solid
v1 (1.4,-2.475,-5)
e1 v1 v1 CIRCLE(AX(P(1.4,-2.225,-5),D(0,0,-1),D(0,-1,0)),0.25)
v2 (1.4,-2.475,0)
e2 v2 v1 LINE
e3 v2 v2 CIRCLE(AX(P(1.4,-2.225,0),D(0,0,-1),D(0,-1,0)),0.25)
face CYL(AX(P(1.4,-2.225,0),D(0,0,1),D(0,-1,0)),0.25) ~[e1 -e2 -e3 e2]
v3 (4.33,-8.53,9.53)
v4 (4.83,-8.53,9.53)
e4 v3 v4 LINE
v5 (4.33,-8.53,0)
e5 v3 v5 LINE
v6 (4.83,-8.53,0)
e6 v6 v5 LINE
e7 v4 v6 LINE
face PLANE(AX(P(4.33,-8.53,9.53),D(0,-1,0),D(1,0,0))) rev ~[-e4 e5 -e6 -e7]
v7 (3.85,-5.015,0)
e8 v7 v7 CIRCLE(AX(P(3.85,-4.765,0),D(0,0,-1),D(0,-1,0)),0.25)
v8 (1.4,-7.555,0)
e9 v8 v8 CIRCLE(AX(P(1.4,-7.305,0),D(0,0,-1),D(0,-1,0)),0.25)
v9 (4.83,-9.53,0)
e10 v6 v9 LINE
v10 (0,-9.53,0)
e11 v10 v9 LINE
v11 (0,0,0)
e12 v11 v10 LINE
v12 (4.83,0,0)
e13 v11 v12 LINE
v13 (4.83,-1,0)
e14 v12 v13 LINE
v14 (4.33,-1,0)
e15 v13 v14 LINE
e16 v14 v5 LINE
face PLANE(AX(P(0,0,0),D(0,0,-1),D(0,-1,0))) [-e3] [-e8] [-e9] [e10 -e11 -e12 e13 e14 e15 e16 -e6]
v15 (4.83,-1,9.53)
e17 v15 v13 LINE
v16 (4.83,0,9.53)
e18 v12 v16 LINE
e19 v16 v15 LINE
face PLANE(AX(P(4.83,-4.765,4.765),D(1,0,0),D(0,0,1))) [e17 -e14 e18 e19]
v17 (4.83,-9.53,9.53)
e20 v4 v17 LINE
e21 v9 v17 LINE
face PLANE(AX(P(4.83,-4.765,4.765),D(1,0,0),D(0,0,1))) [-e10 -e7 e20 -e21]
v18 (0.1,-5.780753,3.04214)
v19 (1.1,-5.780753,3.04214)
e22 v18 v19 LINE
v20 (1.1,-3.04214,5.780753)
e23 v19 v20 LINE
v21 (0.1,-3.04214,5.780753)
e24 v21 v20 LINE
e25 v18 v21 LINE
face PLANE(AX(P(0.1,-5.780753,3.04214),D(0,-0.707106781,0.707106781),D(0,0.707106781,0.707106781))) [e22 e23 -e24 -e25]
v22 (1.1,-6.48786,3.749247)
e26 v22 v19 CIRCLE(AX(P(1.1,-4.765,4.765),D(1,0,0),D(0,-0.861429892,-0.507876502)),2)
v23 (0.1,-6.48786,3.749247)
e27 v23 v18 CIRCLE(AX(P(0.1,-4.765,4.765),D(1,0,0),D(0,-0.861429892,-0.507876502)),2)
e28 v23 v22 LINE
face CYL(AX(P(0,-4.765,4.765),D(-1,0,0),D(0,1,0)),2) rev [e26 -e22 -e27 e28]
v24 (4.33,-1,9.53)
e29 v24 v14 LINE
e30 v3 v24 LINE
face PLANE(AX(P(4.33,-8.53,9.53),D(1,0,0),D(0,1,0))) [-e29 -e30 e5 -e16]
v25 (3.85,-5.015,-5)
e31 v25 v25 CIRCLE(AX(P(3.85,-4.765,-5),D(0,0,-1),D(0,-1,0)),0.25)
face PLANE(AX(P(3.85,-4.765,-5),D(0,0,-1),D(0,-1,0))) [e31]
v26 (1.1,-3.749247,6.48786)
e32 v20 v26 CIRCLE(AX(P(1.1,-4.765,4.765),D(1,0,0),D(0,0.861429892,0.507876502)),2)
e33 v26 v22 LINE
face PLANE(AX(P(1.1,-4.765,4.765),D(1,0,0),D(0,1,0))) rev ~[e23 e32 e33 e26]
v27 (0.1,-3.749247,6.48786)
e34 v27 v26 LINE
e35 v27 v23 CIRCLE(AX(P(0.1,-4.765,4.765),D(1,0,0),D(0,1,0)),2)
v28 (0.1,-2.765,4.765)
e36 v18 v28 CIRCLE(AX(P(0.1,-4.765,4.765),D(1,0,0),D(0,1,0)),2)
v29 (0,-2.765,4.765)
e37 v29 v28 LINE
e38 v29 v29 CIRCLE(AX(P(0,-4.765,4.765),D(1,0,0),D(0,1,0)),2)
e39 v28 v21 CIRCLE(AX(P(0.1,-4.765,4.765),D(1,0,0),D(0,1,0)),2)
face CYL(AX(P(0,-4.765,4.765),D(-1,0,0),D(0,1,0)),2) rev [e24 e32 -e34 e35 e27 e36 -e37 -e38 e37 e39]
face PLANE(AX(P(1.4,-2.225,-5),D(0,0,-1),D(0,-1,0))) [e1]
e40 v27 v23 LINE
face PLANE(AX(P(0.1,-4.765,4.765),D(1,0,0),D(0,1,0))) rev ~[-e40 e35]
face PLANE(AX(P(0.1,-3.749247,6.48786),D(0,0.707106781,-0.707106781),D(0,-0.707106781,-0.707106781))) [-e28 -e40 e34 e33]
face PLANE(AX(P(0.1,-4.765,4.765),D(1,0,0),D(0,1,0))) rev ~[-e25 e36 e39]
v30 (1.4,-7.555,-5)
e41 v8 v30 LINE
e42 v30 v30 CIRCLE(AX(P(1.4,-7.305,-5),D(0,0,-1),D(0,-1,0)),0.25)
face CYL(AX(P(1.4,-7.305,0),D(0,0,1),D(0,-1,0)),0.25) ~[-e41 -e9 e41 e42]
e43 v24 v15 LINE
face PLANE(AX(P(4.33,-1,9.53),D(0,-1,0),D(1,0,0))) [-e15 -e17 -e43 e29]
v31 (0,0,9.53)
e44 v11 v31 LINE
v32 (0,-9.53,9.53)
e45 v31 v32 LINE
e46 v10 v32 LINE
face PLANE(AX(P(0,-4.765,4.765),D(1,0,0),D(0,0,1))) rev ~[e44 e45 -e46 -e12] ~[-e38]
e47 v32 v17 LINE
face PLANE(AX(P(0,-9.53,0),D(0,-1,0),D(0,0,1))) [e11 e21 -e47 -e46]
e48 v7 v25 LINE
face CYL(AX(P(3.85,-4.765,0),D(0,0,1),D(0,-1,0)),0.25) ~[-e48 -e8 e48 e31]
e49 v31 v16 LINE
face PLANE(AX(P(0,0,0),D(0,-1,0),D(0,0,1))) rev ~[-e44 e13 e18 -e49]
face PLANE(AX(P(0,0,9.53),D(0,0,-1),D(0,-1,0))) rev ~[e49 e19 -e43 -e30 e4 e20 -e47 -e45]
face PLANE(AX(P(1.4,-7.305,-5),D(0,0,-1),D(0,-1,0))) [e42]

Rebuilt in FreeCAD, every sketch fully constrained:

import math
import FreeCAD as App
import Part
import Sketcher
from FreeCAD import Vector
Q = App.Units.Quantity

doc = App.newDocument("Part")
params = doc.addObject("Spreadsheet::Sheet", "Params")
for row, (alias, value) in enumerate([
    ("sketch1_width", "9.53 mm"),
    ("pad1_length", "4.83 mm"),
    ("sketch2_diameter", "4 mm"),
    ("pocket1_length", "0.1 mm"),
    ("sketch3_radius", "2 mm"),
    ("pocket2_length", "1 mm"),
    ("sketch4_diameter", "0.5 mm"),
    ("pad2_length", "5 mm"),
    ("sketch5_width", "0.5 mm"),
    ("sketch5_height", "7.53 mm"),
], start=1):
    params.set(f"A{row}", alias)
    params.set(f"B{row}", "=" + value)
    params.setAlias(f"B{row}", alias)

body = doc.addObject("PartDesign::Body", "Body")

sketch1 = body.newObject("Sketcher::SketchObject", "Sketch")
sketch1.AttachmentSupport = (doc.getObject("YZ_Plane"), [""])
sketch1.MapMode = "FlatFace"
sketch1.addGeometry([
    Part.LineSegment(Vector(-9.53, 0, 0), Vector(0, 0, 0)),
    Part.LineSegment(Vector(0, 0, 0), Vector(0, 9.53, 0)),
    Part.LineSegment(Vector(0, 9.53, 0), Vector(-9.53, 9.53, 0)),
    Part.LineSegment(Vector(-9.53, 9.53, 0), Vector(-9.53, 0, 0)),
], False)
sketch1.addConstraint([
    Sketcher.Constraint("Coincident", 0, 2, 1, 1),
    Sketcher.Constraint("Coincident", 1, 2, 2, 1),
    Sketcher.Constraint("Coincident", 2, 2, 3, 1),
    Sketcher.Constraint("Coincident", 3, 2, 0, 1),
    Sketcher.Constraint("Horizontal", 0),
    Sketcher.Constraint("Vertical", 1),
    Sketcher.Constraint("Horizontal", 2),
    Sketcher.Constraint("Vertical", 3),
    Sketcher.Constraint("Coincident", 0, 2, -1, 1),
    Sketcher.Constraint("Equal", 2, 1),
    Sketcher.Constraint("DistanceX", 0, 1, 0, 2, 9.53),
])
sketch1.setExpression("Constraints[10]", "Params.sketch1_width")
pad1 = body.newObject("PartDesign::Pad", "Pad")
pad1.Profile = sketch1
pad1.setExpression("Length", "Params.pad1_length")

sketch2 = body.newObject("Sketcher::SketchObject", "Sketch001")
sketch2.AttachmentSupport = (doc.getObject("YZ_Plane"), [""])
sketch2.MapMode = "FlatFace"
sketch2.addGeometry(Part.Circle(Vector(-4.765, 4.765, 0), Vector(0, 0, 1), 2), False)
sketch2.addConstraint([
    Sketcher.Constraint("Diameter", 0, 4.0),
    Sketcher.Constraint("DistanceX", 0, 3, -1, 1, 4.765),
    Sketcher.Constraint("DistanceY", -1, 1, 0, 3, 4.765),
])
sketch2.setExpression("Constraints[0]", "Params.sketch2_diameter")
pocket1 = body.newObject("PartDesign::Pocket", "Pocket")
pocket1.Profile = sketch2
pocket1.setExpression("Length", "Params.pocket1_length")
pocket1.Reversed = True

sketch3 = body.newObject("Sketcher::SketchObject", "Sketch002")
sketch3.AttachmentSupport = (doc.getObject("YZ_Plane"), [""])
sketch3.MapMode = "FlatFace"
sketch3.AttachmentOffset = App.Placement(Vector(0, 0, 0.1), App.Rotation())
sketch3.addGeometry([
    Part.LineSegment(Vector(-6.48786, 3.749247, 0), Vector(-3.749247, 6.48786, 0)),
    Part.ArcOfCircle(Part.Circle(Vector(-4.765, 4.765, 0), Vector(0, 0, 1), 2), math.radians(30.522488), math.radians(59.477512)),
    Part.LineSegment(Vector(-3.04214, 5.780753, 0), Vector(-5.780753, 3.04214, 0)),
    Part.ArcOfCircle(Part.Circle(Vector(-4.765, 4.765, 0), Vector(0, 0, 1), 2), math.radians(-149.477512), math.radians(-120.522488)),
], False)
sketch3.addConstraint([
    Sketcher.Constraint("Coincident", 0, 2, 1, 2),
    Sketcher.Constraint("Coincident", 1, 1, 2, 1),
    Sketcher.Constraint("Coincident", 2, 2, 3, 2),
    Sketcher.Constraint("Coincident", 3, 1, 0, 1),
    Sketcher.Constraint("Coincident", 3, 3, 1, 3),
    Sketcher.Constraint("Equal", 1, 3),
    Sketcher.Constraint("Parallel", 0, 2),
    Sketcher.Constraint("Equal", 0, 2),
    Sketcher.Constraint("Radius", 1, 2.0),
    Sketcher.Constraint("Angle", 0, Q("45 deg")),
    Sketcher.Constraint("DistanceX", 1, 3, -1, 1, 4.765),
    Sketcher.Constraint("DistanceY", -1, 1, 1, 3, 4.765),
    Sketcher.Constraint("DistanceY", -1, 1, 0, 2, 6.48786),
])
sketch3.setExpression("Constraints[8]", "Params.sketch3_radius")
pocket2 = body.newObject("PartDesign::Pocket", "Pocket001")
pocket2.Profile = sketch3
pocket2.setExpression("Length", "Params.pocket2_length")
pocket2.Reversed = True

sketch4 = body.newObject("Sketcher::SketchObject", "Sketch003")
sketch4.AttachmentSupport = (doc.getObject("XY_Plane"), [""])
sketch4.MapMode = "FlatFace"
sketch4.addGeometry([
    Part.Circle(Vector(1.4, -2.225, 0), Vector(0, 0, 1), 0.25),
    Part.Circle(Vector(3.85, -4.765, 0), Vector(0, 0, 1), 0.25),
    Part.Circle(Vector(1.4, -7.305, 0), Vector(0, 0, 1), 0.25),
], False)
sketch4.addConstraint([
    Sketcher.Constraint("Equal", 0, 1),
    Sketcher.Constraint("Equal", 1, 2),
    Sketcher.Constraint("Vertical", 0, 3, 2, 3),
    Sketcher.Constraint("Diameter", 0, 0.5),
    Sketcher.Constraint("DistanceX", -1, 1, 0, 3, 1.4),
    Sketcher.Constraint("DistanceX", -1, 1, 1, 3, 3.85),
    Sketcher.Constraint("DistanceY", 1, 3, 0, 3, 2.54),
    Sketcher.Constraint("DistanceY", 2, 3, 1, 3, 2.54),
    Sketcher.Constraint("DistanceY", 0, 3, -1, 1, 2.225),
])
sketch4.setExpression("Constraints[3]", "Params.sketch4_diameter")
pad2 = body.newObject("PartDesign::Pad", "Pad001")
pad2.Profile = sketch4
pad2.setExpression("Length", "Params.pad2_length")
pad2.Reversed = True

sketch5 = body.newObject("Sketcher::SketchObject", "Sketch004")
sketch5.AttachmentSupport = (doc.getObject("XY_Plane"), [""])
sketch5.MapMode = "FlatFace"
sketch5.AttachmentOffset = App.Placement(Vector(0, 0, 9.53), App.Rotation())
sketch5.addGeometry([
    Part.LineSegment(Vector(4.33, -1, 0), Vector(4.33, -8.53, 0)),
    Part.LineSegment(Vector(4.33, -8.53, 0), Vector(4.83, -8.53, 0)),
    Part.LineSegment(Vector(4.83, -8.53, 0), Vector(4.83, -1, 0)),
    Part.LineSegment(Vector(4.83, -1, 0), Vector(4.33, -1, 0)),
], False)
sketch5.addConstraint([
    Sketcher.Constraint("Coincident", 0, 2, 1, 1),
    Sketcher.Constraint("Coincident", 1, 2, 2, 1),
    Sketcher.Constraint("Coincident", 2, 2, 3, 1),
    Sketcher.Constraint("Coincident", 3, 2, 0, 1),
    Sketcher.Constraint("Vertical", 0),
    Sketcher.Constraint("Horizontal", 1),
    Sketcher.Constraint("Vertical", 2),
    Sketcher.Constraint("Horizontal", 3),
    Sketcher.Constraint("DistanceX", 1, 1, 1, 2, 0.5),
    Sketcher.Constraint("DistanceY", 2, 2, -1, 1, 1.0),
    Sketcher.Constraint("DistanceY", 0, 2, 0, 1, 7.53),
    Sketcher.Constraint("DistanceX", -1, 1, 0, 2, 4.33),
])
sketch5.setExpression("Constraints[8]", "Params.sketch5_width")
sketch5.setExpression("Constraints[10]", "Params.sketch5_height")
pocket3 = body.newObject("PartDesign::Pocket", "Pocket002")
pocket3.Profile = sketch5
pocket3.Type = "ThroughAll"

doc.recompute()
